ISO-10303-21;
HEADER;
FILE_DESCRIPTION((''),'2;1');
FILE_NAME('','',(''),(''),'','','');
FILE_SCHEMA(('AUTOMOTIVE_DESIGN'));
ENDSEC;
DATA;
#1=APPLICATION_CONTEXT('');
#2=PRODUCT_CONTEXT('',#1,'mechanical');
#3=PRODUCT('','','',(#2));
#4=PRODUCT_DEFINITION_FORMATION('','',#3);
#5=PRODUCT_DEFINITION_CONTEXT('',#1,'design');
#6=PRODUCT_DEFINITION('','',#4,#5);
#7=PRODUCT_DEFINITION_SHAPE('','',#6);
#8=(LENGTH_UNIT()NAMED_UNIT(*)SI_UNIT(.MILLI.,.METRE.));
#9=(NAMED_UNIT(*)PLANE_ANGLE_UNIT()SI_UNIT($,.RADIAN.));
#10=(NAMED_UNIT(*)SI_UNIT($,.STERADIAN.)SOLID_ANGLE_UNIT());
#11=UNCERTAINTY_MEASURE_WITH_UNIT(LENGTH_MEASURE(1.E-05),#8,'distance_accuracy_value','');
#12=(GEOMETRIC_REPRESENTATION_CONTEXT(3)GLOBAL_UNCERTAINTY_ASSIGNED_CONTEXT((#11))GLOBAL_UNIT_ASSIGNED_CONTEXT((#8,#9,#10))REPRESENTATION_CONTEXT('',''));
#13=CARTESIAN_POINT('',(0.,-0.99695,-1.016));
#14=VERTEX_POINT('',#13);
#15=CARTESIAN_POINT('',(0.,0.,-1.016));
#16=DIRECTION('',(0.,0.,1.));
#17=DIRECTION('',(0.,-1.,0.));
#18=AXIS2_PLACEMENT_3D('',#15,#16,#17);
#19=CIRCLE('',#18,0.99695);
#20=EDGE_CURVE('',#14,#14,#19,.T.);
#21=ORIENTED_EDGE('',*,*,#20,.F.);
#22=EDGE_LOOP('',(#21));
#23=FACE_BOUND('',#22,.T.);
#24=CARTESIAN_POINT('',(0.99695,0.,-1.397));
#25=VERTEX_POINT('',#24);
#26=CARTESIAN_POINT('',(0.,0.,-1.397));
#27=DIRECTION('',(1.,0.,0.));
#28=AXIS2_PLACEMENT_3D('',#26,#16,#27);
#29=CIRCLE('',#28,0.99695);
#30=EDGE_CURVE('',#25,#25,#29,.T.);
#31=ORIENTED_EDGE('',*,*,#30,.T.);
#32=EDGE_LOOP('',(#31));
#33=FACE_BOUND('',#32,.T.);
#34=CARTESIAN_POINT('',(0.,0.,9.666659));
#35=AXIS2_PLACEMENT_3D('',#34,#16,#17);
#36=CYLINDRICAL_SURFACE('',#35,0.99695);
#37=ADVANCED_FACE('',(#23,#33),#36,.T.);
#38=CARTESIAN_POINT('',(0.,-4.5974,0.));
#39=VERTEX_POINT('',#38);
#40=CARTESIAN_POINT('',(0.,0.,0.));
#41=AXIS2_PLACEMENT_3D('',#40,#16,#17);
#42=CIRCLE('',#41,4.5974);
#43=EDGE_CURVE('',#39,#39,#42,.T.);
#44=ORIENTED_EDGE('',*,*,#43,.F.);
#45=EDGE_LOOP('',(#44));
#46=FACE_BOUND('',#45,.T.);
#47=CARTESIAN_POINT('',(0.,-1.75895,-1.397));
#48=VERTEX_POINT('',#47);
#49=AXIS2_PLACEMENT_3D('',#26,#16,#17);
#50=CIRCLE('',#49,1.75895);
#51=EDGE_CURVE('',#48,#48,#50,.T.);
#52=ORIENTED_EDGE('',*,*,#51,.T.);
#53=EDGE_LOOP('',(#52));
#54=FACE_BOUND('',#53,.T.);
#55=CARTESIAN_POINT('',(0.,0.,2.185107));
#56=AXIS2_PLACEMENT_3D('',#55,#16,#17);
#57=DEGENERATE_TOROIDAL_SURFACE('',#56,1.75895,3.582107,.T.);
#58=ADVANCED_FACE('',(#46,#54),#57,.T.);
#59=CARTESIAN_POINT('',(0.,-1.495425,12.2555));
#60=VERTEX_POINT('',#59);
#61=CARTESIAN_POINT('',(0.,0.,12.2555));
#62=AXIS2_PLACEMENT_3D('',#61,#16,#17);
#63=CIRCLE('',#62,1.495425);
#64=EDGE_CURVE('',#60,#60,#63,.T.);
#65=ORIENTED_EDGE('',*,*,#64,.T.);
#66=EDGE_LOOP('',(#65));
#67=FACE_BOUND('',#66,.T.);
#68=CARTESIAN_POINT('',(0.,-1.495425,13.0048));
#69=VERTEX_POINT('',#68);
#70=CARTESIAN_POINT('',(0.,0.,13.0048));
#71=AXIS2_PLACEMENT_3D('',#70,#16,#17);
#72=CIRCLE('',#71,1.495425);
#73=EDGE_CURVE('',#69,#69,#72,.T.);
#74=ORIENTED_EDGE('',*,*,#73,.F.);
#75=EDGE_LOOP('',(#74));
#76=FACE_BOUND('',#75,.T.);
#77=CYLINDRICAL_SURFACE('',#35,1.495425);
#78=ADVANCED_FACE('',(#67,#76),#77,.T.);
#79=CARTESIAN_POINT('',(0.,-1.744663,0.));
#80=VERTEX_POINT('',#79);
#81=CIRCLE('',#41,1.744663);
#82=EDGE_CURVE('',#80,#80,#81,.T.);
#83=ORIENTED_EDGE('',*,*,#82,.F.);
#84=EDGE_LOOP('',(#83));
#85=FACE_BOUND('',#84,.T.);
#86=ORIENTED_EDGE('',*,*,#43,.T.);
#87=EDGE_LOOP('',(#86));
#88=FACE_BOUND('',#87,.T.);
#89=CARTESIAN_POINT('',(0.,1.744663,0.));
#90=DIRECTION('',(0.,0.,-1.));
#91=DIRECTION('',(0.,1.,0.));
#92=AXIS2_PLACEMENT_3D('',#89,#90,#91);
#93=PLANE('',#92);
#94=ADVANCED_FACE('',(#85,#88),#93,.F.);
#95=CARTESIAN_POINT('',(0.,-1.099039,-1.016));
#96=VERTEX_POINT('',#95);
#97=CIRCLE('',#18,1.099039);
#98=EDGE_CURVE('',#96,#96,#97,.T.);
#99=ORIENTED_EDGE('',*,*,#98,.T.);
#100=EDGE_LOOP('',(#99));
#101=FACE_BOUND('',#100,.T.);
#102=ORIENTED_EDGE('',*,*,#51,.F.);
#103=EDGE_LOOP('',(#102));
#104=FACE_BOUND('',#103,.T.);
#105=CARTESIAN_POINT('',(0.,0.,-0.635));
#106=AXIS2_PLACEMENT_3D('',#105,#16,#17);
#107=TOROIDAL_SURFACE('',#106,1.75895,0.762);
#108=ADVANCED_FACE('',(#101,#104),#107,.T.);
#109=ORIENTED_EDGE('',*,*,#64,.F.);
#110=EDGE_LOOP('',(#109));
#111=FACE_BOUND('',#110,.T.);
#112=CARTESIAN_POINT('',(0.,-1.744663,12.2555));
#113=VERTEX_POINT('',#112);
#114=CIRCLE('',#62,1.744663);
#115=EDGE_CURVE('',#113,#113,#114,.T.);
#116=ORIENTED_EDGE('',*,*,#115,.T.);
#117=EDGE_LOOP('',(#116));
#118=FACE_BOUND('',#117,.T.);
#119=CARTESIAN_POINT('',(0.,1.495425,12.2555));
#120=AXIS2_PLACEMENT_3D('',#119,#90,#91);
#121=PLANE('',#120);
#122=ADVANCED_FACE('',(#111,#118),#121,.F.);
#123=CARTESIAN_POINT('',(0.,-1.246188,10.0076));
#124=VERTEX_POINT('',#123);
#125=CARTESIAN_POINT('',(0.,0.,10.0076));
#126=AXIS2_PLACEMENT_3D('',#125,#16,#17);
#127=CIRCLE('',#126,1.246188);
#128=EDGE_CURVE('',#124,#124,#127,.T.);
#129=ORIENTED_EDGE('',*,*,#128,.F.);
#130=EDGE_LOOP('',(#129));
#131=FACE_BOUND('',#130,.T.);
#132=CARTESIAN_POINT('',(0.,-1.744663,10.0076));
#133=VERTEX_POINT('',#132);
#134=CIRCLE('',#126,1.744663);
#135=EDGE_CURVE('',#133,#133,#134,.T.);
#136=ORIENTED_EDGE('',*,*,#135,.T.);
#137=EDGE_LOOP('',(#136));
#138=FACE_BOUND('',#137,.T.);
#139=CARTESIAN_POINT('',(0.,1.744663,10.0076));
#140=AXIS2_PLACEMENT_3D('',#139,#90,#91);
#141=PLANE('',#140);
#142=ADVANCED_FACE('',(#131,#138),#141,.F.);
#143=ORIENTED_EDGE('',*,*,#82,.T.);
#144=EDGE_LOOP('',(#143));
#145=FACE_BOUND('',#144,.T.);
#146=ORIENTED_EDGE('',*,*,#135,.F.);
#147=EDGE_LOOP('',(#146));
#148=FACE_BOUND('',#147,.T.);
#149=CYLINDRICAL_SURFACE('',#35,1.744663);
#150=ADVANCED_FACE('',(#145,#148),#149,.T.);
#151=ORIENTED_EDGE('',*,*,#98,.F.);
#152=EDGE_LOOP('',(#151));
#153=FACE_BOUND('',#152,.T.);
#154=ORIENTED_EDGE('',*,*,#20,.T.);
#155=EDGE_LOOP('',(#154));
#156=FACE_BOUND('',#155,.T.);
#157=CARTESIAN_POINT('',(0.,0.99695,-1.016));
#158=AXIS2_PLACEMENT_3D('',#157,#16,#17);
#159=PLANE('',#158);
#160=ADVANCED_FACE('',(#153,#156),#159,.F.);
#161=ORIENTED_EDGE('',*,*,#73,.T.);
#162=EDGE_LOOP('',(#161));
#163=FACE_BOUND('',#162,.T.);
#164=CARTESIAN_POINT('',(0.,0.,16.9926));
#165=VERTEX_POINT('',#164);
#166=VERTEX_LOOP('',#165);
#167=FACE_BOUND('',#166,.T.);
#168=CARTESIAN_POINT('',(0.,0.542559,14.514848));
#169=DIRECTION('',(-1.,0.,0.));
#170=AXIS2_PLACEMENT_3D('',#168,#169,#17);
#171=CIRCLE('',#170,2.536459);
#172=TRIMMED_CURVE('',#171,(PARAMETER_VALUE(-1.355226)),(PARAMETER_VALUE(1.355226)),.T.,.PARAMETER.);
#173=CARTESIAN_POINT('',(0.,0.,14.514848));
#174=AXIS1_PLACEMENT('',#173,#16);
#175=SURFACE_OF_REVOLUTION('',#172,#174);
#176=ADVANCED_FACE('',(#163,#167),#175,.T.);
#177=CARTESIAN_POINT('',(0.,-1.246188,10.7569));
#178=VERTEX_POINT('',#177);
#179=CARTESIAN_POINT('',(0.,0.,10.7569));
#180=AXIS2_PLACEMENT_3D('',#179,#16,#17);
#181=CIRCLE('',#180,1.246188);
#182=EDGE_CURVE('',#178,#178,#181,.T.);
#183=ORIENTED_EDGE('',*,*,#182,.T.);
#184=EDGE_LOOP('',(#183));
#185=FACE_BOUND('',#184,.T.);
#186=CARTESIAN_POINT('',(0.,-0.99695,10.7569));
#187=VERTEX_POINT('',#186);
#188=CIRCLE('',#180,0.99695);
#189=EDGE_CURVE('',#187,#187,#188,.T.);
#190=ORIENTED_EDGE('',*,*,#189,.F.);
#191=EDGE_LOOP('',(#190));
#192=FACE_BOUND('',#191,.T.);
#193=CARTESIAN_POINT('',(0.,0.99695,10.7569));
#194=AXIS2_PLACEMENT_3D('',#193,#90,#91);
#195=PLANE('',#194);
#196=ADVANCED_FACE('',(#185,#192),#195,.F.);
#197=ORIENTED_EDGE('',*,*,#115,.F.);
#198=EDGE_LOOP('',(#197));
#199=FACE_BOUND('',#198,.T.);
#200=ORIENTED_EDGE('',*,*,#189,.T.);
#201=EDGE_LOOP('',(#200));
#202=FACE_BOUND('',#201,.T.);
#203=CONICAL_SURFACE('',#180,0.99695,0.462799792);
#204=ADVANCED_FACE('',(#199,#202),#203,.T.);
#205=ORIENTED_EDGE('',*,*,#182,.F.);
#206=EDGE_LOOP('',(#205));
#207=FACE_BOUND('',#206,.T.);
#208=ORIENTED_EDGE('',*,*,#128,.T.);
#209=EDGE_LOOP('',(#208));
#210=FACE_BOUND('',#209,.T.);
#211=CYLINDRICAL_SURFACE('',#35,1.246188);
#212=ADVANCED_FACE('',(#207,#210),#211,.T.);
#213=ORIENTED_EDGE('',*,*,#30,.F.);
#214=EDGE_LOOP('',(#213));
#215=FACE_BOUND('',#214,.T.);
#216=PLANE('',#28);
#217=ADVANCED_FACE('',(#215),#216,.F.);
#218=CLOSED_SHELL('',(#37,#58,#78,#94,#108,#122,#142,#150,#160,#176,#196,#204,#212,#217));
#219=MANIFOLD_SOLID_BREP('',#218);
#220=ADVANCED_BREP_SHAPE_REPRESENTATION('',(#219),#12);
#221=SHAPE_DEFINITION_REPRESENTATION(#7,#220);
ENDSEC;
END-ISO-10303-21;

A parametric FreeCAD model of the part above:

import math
import FreeCAD as App
import Part
import Sketcher

V = App.Vector
Q = App.Units.Quantity

doc = App.newDocument("Part")
body = doc.addObject("PartDesign::Body", "Body")

# Sketch on YZ plane
sketch1 = body.newObject("Sketcher::SketchObject", "Sketch")
sketch1.AttachmentSupport = (doc.getObject("YZ_Plane"), [""])
sketch1.MapMode = "FlatFace"
sketch1.addGeometry([
    Part.LineSegment(V(1.74, 10.01, 0), V(1.25, 10.01, 0)),  # 0
    Part.LineSegment(V(1.25, 10.01, 0), V(1.25, 10.76, 0)),  # 1
    Part.LineSegment(V(1.25, 10.76, 0), V(1, 10.76, 0)),  # 2
    Part.LineSegment(V(1, 10.76, 0), V(1.74, 12.26, 0)),  # 3
    Part.LineSegment(V(1.74, 12.26, 0), V(1.5, 12.26, 0)),  # 4
    Part.LineSegment(V(1.5, 12.26, 0), V(1.5, 13, 0)),  # 5
    Part.ArcOfCircle(Part.Circle(V(-0.54, 14.51, 0), V(0, 0, 1), 2.54), math.radians(-37), math.radians(78)),  # 6
    Part.LineSegment(V(0, 16.99, 0), V(0, -18.39, 0)),  # 7
    Part.LineSegment(V(0, -18.39, 0), V(1, -17.89, 0)),  # 8
    Part.LineSegment(V(1, -17.89, 0), V(1, -1.02, 0)),  # 9
    Part.LineSegment(V(1, -1.02, 0), V(1.1, -1.02, 0)),  # 10
    Part.ArcOfCircle(Part.Circle(V(1.76, -0.64, 0), V(0, 0, 1), 0.76), math.radians(-150), math.radians(-90)),  # 11
    Part.ArcOfCircle(Part.Circle(V(1.76, 2.19, 0), V(0, 0, 1), 3.58), math.radians(-90), math.radians(-38)),  # 12
    Part.LineSegment(V(4.6, 0, 0), V(1.74, 0, 0)),  # 13
    Part.LineSegment(V(1.74, 0, 0), V(1.74, 10.01, 0)),  # 14
], False)
sketch1.addConstraint([
    Sketcher.Constraint("Coincident", 0, 2, 1, 1),
    Sketcher.Constraint("Coincident", 1, 2, 2, 1),
    Sketcher.Constraint("Coincident", 2, 2, 3, 1),
    Sketcher.Constraint("Coincident", 3, 2, 4, 1),
    Sketcher.Constraint("Coincident", 4, 2, 5, 1),
    Sketcher.Constraint("Coincident", 5, 2, 6, 1),
    Sketcher.Constraint("Coincident", 6, 2, 7, 1),
    Sketcher.Constraint("Coincident", 7, 2, 8, 1),
    Sketcher.Constraint("Coincident", 8, 2, 9, 1),
    Sketcher.Constraint("Coincident", 9, 2, 10, 1),
    Sketcher.Constraint("Coincident", 10, 2, 11, 1),
    Sketcher.Constraint("Tangent", 11, 2, 12, 1),
    Sketcher.Constraint("Coincident", 12, 2, 13, 1),
    Sketcher.Constraint("Coincident", 13, 2, 14, 1),
    Sketcher.Constraint("Coincident", 14, 2, 0, 1),
    Sketcher.Constraint("Horizontal", 0),
    Sketcher.Constraint("Vertical", 1),
    Sketcher.Constraint("Horizontal", 2),
    Sketcher.Constraint("Horizontal", 4),
    Sketcher.Constraint("Vertical", 5),
    Sketcher.Constraint("Vertical", 7),
    Sketcher.Constraint("Vertical", 9),
    Sketcher.Constraint("Horizontal", 10),
    Sketcher.Constraint("Horizontal", 13),
    Sketcher.Constraint("Vertical", 14),
    Sketcher.Constraint("PointOnObject", 6, 2, -2),
    Sketcher.Constraint("PointOnObject", 12, 2, -1),
    Sketcher.Constraint("Vertical", 11, 3, 12, 3),
    Sketcher.Constraint("Vertical", 2, 2, 8, 2),
    Sketcher.Constraint("Vertical", 3, 2, 13, 2),
    Sketcher.Constraint("Equal", 2, 4),
    Sketcher.Constraint("Equal", 1, 5),
    Sketcher.Constraint("Radius", 11, Q("0.03 in")),
    Sketcher.Constraint("DistanceY", 7, 2, 7, 1, Q("1.393 in")),
    Sketcher.Constraint("DistanceY", 14, 1, 14, 2, Q("0.394 in")),
    Sketcher.Constraint("DistanceY", 9, 2, -1, 1, Q("0.04 in")),
    Sketcher.Constraint("DistanceX", 2, 2, 12, 3, Q("0.03 in")),
    Sketcher.Constraint("DistanceY", 1, 1, 1, 2, Q("0.0295 in")),
    Sketcher.Constraint("DistanceY", 11, 3, -1, 1, Q("0.025 in")),
    Sketcher.Constraint("DistanceY", -1, 1, 5, 2, Q("0.512 in")),
    Sketcher.Constraint("DistanceY", -1, 1, 6, 2, Q("0.669 in")),
    Sketcher.Constraint("DistanceX", -1, 1, 12, 2, Q("0.181 in")),
    Sketcher.Constraint("Radius", 6, 2.536459),
    Sketcher.Constraint("Radius", 12, 3.582107),
    Sketcher.Constraint("DistanceX", 0, 2, 0, 1, 0.498475),
    Sketcher.Constraint("DistanceX", 2, 2, 2, 1, 0.249238),
    Sketcher.Constraint("DistanceY", 9, 1, 9, 2, 16.875125),
])
revolution = body.newObject("PartDesign::Revolution", "Revolution")
revolution.Profile = sketch1
revolution.ReferenceAxis = (sketch1, ["V_Axis"])
revolution.Angle = 360

# Sketch on XY plane
sketch2 = body.newObject("Sketcher::SketchObject", "Sketch001")
sketch2.AttachmentSupport = (doc.getObject("XY_Plane"), [""])
sketch2.MapMode = "FlatFace"
sketch2.AttachmentOffset = App.Placement(V(0, 0, -0.055 * 25.4), App.Rotation())
sketch2.addGeometry(Part.Circle(V(0, 0, 0), V(0, 0, 1), 10), False)
sketch2.addConstraint([
    Sketcher.Constraint("Coincident", 0, 3, -1, 1),
    Sketcher.Constraint("Diameter", 0, 20.904811),
])
pocket1 = body.newObject("PartDesign::Pocket", "Pocket")
pocket1.Profile = sketch2
pocket1.Type = "ThroughAll"

doc.recompute()
